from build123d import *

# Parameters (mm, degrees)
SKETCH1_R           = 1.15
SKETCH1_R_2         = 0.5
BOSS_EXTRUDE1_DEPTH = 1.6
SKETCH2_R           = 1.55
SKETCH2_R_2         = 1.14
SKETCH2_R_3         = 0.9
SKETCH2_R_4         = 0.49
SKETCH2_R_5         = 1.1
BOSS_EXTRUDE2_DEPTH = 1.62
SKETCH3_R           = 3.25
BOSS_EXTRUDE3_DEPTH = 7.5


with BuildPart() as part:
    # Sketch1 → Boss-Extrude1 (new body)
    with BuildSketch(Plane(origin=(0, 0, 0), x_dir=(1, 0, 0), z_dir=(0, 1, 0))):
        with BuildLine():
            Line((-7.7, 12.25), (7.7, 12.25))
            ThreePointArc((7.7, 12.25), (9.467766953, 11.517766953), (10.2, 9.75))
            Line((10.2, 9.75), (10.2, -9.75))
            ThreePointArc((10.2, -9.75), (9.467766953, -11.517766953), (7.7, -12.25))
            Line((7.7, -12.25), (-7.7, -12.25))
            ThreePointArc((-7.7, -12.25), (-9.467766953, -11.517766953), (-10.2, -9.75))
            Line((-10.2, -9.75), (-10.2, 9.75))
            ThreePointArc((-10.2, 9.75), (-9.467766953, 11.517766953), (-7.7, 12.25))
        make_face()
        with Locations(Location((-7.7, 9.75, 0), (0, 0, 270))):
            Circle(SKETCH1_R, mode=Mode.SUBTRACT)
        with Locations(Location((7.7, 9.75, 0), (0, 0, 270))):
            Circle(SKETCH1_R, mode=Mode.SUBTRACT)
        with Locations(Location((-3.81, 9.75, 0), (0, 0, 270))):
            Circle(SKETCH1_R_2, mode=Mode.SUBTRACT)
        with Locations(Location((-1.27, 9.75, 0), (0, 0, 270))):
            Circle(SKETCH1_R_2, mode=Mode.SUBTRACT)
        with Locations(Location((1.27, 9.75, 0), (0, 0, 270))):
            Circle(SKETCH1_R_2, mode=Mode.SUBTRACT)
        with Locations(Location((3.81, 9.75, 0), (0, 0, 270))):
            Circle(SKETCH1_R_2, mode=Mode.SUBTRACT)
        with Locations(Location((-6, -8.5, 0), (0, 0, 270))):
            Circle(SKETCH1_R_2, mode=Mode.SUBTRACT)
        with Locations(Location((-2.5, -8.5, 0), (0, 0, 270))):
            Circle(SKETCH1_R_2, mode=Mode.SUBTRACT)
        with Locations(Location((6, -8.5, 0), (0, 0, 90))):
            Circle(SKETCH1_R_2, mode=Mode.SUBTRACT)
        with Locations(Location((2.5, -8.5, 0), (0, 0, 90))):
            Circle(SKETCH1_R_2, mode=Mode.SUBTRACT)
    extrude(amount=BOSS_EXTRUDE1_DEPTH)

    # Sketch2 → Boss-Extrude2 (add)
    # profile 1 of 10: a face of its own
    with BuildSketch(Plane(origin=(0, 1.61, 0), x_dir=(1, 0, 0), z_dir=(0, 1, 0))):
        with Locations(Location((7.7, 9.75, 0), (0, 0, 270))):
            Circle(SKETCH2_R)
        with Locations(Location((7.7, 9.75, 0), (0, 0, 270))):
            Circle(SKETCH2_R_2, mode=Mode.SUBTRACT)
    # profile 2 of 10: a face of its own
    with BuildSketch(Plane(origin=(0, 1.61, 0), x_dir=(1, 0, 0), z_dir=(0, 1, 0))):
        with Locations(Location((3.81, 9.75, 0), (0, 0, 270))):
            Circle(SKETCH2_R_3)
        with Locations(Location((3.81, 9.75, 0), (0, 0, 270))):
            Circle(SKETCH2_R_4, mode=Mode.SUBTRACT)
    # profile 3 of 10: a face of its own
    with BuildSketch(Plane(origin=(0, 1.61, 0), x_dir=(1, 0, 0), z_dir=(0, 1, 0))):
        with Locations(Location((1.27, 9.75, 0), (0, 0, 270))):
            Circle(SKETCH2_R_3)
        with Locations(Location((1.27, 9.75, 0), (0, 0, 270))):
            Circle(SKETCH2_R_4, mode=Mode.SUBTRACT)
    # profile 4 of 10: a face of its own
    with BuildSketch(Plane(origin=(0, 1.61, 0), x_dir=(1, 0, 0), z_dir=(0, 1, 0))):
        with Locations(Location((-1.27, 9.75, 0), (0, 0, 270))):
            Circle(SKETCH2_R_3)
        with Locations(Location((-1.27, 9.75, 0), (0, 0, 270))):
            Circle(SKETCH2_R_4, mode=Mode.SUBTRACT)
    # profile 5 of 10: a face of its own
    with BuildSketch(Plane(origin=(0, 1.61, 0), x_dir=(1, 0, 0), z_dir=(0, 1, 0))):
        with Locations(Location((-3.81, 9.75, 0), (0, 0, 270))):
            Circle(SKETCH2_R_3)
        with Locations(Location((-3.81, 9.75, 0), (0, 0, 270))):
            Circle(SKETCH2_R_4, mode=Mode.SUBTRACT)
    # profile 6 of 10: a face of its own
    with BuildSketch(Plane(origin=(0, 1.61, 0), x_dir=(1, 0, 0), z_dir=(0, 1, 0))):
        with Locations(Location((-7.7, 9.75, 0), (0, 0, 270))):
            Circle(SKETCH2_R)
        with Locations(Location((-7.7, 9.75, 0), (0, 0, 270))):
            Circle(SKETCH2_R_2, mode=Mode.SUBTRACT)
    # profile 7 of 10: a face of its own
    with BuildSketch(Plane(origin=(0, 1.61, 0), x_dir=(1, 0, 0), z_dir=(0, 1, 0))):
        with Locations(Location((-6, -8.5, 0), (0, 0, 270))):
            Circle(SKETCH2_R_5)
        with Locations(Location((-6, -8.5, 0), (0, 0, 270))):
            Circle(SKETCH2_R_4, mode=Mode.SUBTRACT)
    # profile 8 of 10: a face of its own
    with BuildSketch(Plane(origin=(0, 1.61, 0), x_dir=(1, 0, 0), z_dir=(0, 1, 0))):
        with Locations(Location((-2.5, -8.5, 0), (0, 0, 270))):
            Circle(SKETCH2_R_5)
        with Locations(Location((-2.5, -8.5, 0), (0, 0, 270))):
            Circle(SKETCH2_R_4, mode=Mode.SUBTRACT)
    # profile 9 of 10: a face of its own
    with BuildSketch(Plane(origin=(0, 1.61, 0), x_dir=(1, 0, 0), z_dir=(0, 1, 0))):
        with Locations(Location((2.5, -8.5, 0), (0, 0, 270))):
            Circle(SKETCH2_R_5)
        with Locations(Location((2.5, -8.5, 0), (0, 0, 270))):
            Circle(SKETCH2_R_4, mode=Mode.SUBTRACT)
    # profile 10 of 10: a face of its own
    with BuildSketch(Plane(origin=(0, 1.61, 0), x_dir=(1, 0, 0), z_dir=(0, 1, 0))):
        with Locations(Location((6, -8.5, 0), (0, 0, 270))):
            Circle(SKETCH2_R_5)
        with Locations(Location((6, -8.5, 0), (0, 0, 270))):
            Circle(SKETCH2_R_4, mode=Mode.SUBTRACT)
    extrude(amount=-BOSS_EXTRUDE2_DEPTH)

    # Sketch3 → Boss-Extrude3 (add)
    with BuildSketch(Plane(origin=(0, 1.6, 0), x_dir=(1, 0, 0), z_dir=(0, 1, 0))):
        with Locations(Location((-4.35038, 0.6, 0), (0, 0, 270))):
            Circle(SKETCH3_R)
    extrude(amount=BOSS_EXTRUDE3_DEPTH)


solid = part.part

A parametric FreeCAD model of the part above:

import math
import FreeCAD as App
import Part
import Sketcher

V = App.Vector

doc = App.newDocument("Part")
body = doc.addObject("PartDesign::Body", "Body")

# Sketch on XZ plane
sketch1 = body.newObject("Sketcher::SketchObject", "Sketch")
sketch1.AttachmentSupport = (doc.getObject("XZ_Plane"), [""])
sketch1.MapMode = "FlatFace"
sketch1.addGeometry(Part.LineSegment(V(7.7, -12.2, 0), V(-7.7, -12.2, 0)), False)
sketch1.addGeometry(Part.ArcOfCircle(Part.Circle(V(-7.7, -9.8, 0), V(0, 0, 1), 2.5), math.radians(180), math.radians(270)), False)
sketch1.addGeometry(Part.LineSegment(V(-10.2, -9.8, 0), V(-10.2, 9.8, 0)), False)
sketch1.addGeometry(Part.ArcOfCircle(Part.Circle(V(-7.7, 9.8, 0), V(0, 0, 1), 2.5), math.radians(90), math.radians(180)), False)
sketch1.addGeometry(Part.LineSegment(V(-7.7, 12.2, 0), V(7.7, 12.2, 0)), False)
sketch1.addGeometry(Part.ArcOfCircle(Part.Circle(V(7.7, 9.8, 0), V(0, 0, 1), 2.5), math.radians(0), math.radians(90)), False)
sketch1.addGeometry(Part.LineSegment(V(10.2, 9.8, 0), V(10.2, -9.8, 0)), False)
sketch1.addGeometry(Part.ArcOfCircle(Part.Circle(V(7.7, -9.8, 0), V(0, 0, 1), 2.5), math.radians(-90), math.radians(0)), False)
sketch1.addGeometry(Part.Circle(V(6, 8.5, 0), V(0, 0, 1), 0.5), False)
sketch1.addGeometry(Part.Circle(V(2.5, 8.5, 0), V(0, 0, 1), 0.5), False)
sketch1.addGeometry(Part.Circle(V(-2.5, 8.5, 0), V(0, 0, 1), 0.5), False)
sketch1.addGeometry(Part.Circle(V(-6, 8.5, 0), V(0, 0, 1), 0.5), False)
sketch1.addGeometry(Part.Circle(V(7.7, -9.8, 0), V(0, 0, 1), 1.1), False)
sketch1.addGeometry(Part.Circle(V(3.8, -9.8, 0), V(0, 0, 1), 0.5), False)
sketch1.addGeometry(Part.Circle(V(1.3, -9.8, 0), V(0, 0, 1), 0.5), False)
sketch1.addGeometry(Part.Circle(V(-1.3, -9.8, 0), V(0, 0, 1), 0.5), False)
sketch1.addGeometry(Part.Circle(V(-3.8, -9.8, 0), V(0, 0, 1), 0.5), False)
sketch1.addGeometry(Part.Circle(V(-7.7, -9.8, 0), V(0, 0, 1), 1.1), False)
sketch1.addConstraint(Sketcher.Constraint("Tangent", 0, 2, 1, 2))
sketch1.addConstraint(Sketcher.Constraint("Tangent", 1, 1, 2, 1))
sketch1.addConstraint(Sketcher.Constraint("Tangent", 2, 2, 3, 2))
sketch1.addConstraint(Sketcher.Constraint("Tangent", 3, 1, 4, 1))
sketch1.addConstraint(Sketcher.Constraint("Tangent", 4, 2, 5, 2))
sketch1.addConstraint(Sketcher.Constraint("Tangent", 5, 1, 6, 1))
sketch1.addConstraint(Sketcher.Constraint("Tangent", 6, 2, 7, 2))
sketch1.addConstraint(Sketcher.Constraint("Tangent", 7, 1, 0, 1))
sketch1.addConstraint(Sketcher.Constraint("Horizontal", 0))
sketch1.addConstraint(Sketcher.Constraint("Vertical", 2))
sketch1.addConstraint(Sketcher.Constraint("Horizontal", 4))
sketch1.addConstraint(Sketcher.Constraint("Vertical", 6))
sketch1.addConstraint(Sketcher.Constraint("Coincident", 12, 3, 7, 3))
sketch1.addConstraint(Sketcher.Constraint("Coincident", 17, 3, 1, 3))
sketch1.addConstraint(Sketcher.Constraint("Equal", 1, 3))
sketch1.addConstraint(Sketcher.Constraint("Equal", 3, 5))
sketch1.addConstraint(Sketcher.Constraint("Equal", 5, 7))
sketch1.addConstraint(Sketcher.Constraint("Equal", 8, 9))
sketch1.addConstraint(Sketcher.Constraint("Equal", 9, 10))
sketch1.addConstraint(Sketcher.Constraint("Equal", 10, 11))
sketch1.addConstraint(Sketcher.Constraint("Equal", 11, 13))
sketch1.addConstraint(Sketcher.Constraint("Equal", 13, 14))
sketch1.addConstraint(Sketcher.Constraint("Equal", 14, 15))
sketch1.addConstraint(Sketcher.Constraint("Equal", 15, 16))
sketch1.addConstraint(Sketcher.Constraint("Equal", 12, 17))
sketch1.addConstraint(Sketcher.Constraint("Symmetric", 1, 3, 5, 3, -1, 1))
sketch1.addConstraint(Sketcher.Constraint("Symmetric", 9, 3, 10, 3, -2))
sketch1.addConstraint(Sketcher.Constraint("Symmetric", 8, 3, 11, 3, -2))
sketch1.addConstraint(Sketcher.Constraint("Symmetric", 14, 3, 15, 3, -2))
sketch1.addConstraint(Sketcher.Constraint("Symmetric", 13, 3, 16, 3, -2))
sketch1.addConstraint(Sketcher.Constraint("Horizontal", 8, 3, 9, 3))
sketch1.addConstraint(Sketcher.Constraint("Horizontal", 12, 3, 13, 3))
sketch1.addConstraint(Sketcher.Constraint("Horizontal", 13, 3, 14, 3))
sketch1.addConstraint(Sketcher.Constraint("Diameter", 8, 1.0))
sketch1.addConstraint(Sketcher.Constraint("Diameter", 12, 2.3))
sketch1.addConstraint(Sketcher.Constraint("Radius", 1, 2.5))
sketch1.addConstraint(Sketcher.Constraint("DistanceX", 0, 2, 0, 1, 15.4))
sketch1.addConstraint(Sketcher.Constraint("DistanceY", 2, 1, 2, 2, 19.5))
sketch1.addConstraint(Sketcher.Constraint("DistanceX", -1, 1, 8, 3, 6.0))
sketch1.addConstraint(Sketcher.Constraint("DistanceX", 10, 3, 9, 3, 5.0))
sketch1.addConstraint(Sketcher.Constraint("DistanceY", -1, 1, 8, 3, 8.5))
sketch1.addConstraint(Sketcher.Constraint("DistanceX", -1, 1, 13, 3, 3.81))
sketch1.addConstraint(Sketcher.Constraint("DistanceX", -1, 1, 14, 3, 1.27))
pad1 = body.newObject("PartDesign::Pad", "Pad")
pad1.Profile = sketch1
pad1.Length = 1.6
pad1.Reversed = True

# Sketch on XZ plane
sketch2 = body.newObject("Sketcher::SketchObject", "Sketch001")
sketch2.AttachmentSupport = (doc.getObject("XZ_Plane"), [""])
sketch2.MapMode = "FlatFace"
sketch2.AttachmentOffset = App.Placement(V(0, 0, -1.61), App.Rotation())
sketch2.addGeometry(Part.Circle(V(7.7, -9.75, 0), V(0, 0, 1), 1.55), False)
sketch2.addGeometry(Part.Circle(V(7.7, -9.75, 0), V(0, 0, 1), 1.14), False)
sketch2.addGeometry(Part.Circle(V(3.81, -9.75, 0), V(0, 0, 1), 0.9), False)
sketch2.addGeometry(Part.Circle(V(3.81, -9.75, 0), V(0, 0, 1), 0.49), False)
sketch2.addGeometry(Part.Circle(V(1.27, -9.75, 0), V(0, 0, 1), 0.9), False)
sketch2.addGeometry(Part.Circle(V(1.27, -9.75, 0), V(0, 0, 1), 0.49), False)
sketch2.addGeometry(Part.Circle(V(-1.27, -9.75, 0), V(0, 0, 1), 0.9), False)
sketch2.addGeometry(Part.Circle(V(-1.27, -9.75, 0), V(0, 0, 1), 0.49), False)
sketch2.addGeometry(Part.Circle(V(-3.81, -9.75, 0), V(0, 0, 1), 0.9), False)
sketch2.addGeometry(Part.Circle(V(-3.81, -9.75, 0), V(0, 0, 1), 0.49), False)
sketch2.addGeometry(Part.Circle(V(-7.7, -9.75, 0), V(0, 0, 1), 1.55), False)
sketch2.addGeometry(Part.Circle(V(-7.7, -9.75, 0), V(0, 0, 1), 1.14), False)
sketch2.addGeometry(Part.Circle(V(-6, 8.5, 0), V(0, 0, 1), 1.1), False)
sketch2.addGeometry(Part.Circle(V(-6, 8.5, 0), V(0, 0, 1), 0.49), False)
sketch2.addGeometry(Part.Circle(V(-2.5, 8.5, 0), V(0, 0, 1), 1.1), False)
sketch2.addGeometry(Part.Circle(V(-2.5, 8.5, 0), V(0, 0, 1), 0.49), False)
sketch2.addGeometry(Part.Circle(V(2.5, 8.5, 0), V(0, 0, 1), 1.1), False)
sketch2.addGeometry(Part.Circle(V(2.5, 8.5, 0), V(0, 0, 1), 0.49), False)
sketch2.addGeometry(Part.Circle(V(6, 8.5, 0), V(0, 0, 1), 1.1), False)
sketch2.addGeometry(Part.Circle(V(6, 8.5, 0), V(0, 0, 1), 0.49), False)
sketch2.addConstraint(Sketcher.Constraint("Coincident", 1, 3, 0, 3))
sketch2.addConstraint(Sketcher.Constraint("Coincident", 3, 3, 2, 3))
sketch2.addConstraint(Sketcher.Constraint("Coincident", 5, 3, 4, 3))
sketch2.addConstraint(Sketcher.Constraint("Coincident", 7, 3, 6, 3))
sketch2.addConstraint(Sketcher.Constraint("Coincident", 9, 3, 8, 3))
sketch2.addConstraint(Sketcher.Constraint("Coincident", 11, 3, 10, 3))
sketch2.addConstraint(Sketcher.Constraint("Coincident", 13, 3, 12, 3))
sketch2.addConstraint(Sketcher.Constraint("Coincident", 15, 3, 14, 3))
sketch2.addConstraint(Sketcher.Constraint("Coincident", 17, 3, 16, 3))
sketch2.addConstraint(Sketcher.Constraint("Coincident", 19, 3, 18, 3))
sketch2.addConstraint(Sketcher.Constraint("Equal", 2, 4))
sketch2.addConstraint(Sketcher.Constraint("Equal", 3, 5))
sketch2.addConstraint(Sketcher.Constraint("Equal", 4, 6))
sketch2.addConstraint(Sketcher.Constraint("Equal", 5, 7))
sketch2.addConstraint(Sketcher.Constraint("Equal", 6, 8))
sketch2.addConstraint(Sketcher.Constraint("Equal", 7, 9))
sketch2.addConstraint(Sketcher.Constraint("Equal", 0, 10))
sketch2.addConstraint(Sketcher.Constraint("Equal", 1, 11))
sketch2.addConstraint(Sketcher.Constraint("Equal", 9, 13))
sketch2.addConstraint(Sketcher.Constraint("Equal", 12, 14))
sketch2.addConstraint(Sketcher.Constraint("Equal", 13, 15))
sketch2.addConstraint(Sketcher.Constraint("Equal", 14, 16))
sketch2.addConstraint(Sketcher.Constraint("Equal", 15, 17))
sketch2.addConstraint(Sketcher.Constraint("Equal", 16, 18))
sketch2.addConstraint(Sketcher.Constraint("Equal", 17, 19))
sketch2.addConstraint(Sketcher.Constraint("Symmetric", 4, 3, 6, 3, -2))
sketch2.addConstraint(Sketcher.Constraint("Symmetric", 2, 3, 8, 3, -2))
sketch2.addConstraint(Sketcher.Constraint("Symmetric", 0, 3, 10, 3, -2))
sketch2.addConstraint(Sketcher.Constraint("Symmetric", 14, 3, 16, 3, -2))
sketch2.addConstraint(Sketcher.Constraint("Symmetric", 12, 3, 18, 3, -2))
sketch2.addConstraint(Sketcher.Constraint("Horizontal", 1, 3, 2, 3))
sketch2.addConstraint(Sketcher.Constraint("Horizontal", 3, 3, 4, 3))
sketch2.addConstraint(Sketcher.Constraint("Horizontal", 13, 3, 14, 3))
sketch2.addConstraint(Sketcher.Constraint("Diameter", 0, 3.1))
sketch2.addConstraint(Sketcher.Constraint("Diameter", 2, 1.8))
sketch2.addConstraint(Sketcher.Constraint("Diameter", 12, 2.2))
sketch2.addConstraint(Sketcher.Constraint("Diameter", 1, 2.28))
sketch2.addConstraint(Sketcher.Constraint("Diameter", 3, 0.98))
sketch2.addConstraint(Sketcher.Constraint("DistanceX", 12, 3, -1, 1, 6.0))
sketch2.addConstraint(Sketcher.Constraint("DistanceX", 14, 3, 16, 3, 5.0))
sketch2.addConstraint(Sketcher.Constraint("DistanceX", -1, 1, 0, 3, 7.7))
sketch2.addConstraint(Sketcher.Constraint("DistanceY", -1, 1, 12, 3, 8.5))
sketch2.addConstraint(Sketcher.Constraint("DistanceY", 0, 3, -1, 1, 9.75))
sketch2.addConstraint(Sketcher.Constraint("DistanceX", -1, 1, 2, 3, 3.81))
sketch2.addConstraint(Sketcher.Constraint("DistanceX", -1, 1, 4, 3, 1.27))
pad2 = body.newObject("PartDesign::Pad", "Pad001")
pad2.Profile = sketch2
pad2.Length = 1.62

# Sketch on XZ plane
sketch3 = body.newObject("Sketcher::SketchObject", "Sketch002")
sketch3.AttachmentSupport = (doc.getObject("XZ_Plane"), [""])
sketch3.MapMode = "FlatFace"
sketch3.AttachmentOffset = App.Placement(V(0, 0, -1.6), App.Rotation())
sketch3.addGeometry(Part.Circle(V(-4.4, -0.6, 0), V(0, 0, 1), 3.2), False)
sketch3.addConstraint(Sketcher.Constraint("Diameter", 0, 6.5))
sketch3.addConstraint(Sketcher.Constraint("DistanceY", 0, 3, -1, 1, 0.6))
sketch3.addConstraint(Sketcher.Constraint("DistanceX", 0, 3, -1, 1, 4.35038))
pad3 = body.newObject("PartDesign::Pad", "Pad002")
pad3.Profile = sketch3
pad3.Length = 7.5
pad3.Reversed = True

doc.recompute()
